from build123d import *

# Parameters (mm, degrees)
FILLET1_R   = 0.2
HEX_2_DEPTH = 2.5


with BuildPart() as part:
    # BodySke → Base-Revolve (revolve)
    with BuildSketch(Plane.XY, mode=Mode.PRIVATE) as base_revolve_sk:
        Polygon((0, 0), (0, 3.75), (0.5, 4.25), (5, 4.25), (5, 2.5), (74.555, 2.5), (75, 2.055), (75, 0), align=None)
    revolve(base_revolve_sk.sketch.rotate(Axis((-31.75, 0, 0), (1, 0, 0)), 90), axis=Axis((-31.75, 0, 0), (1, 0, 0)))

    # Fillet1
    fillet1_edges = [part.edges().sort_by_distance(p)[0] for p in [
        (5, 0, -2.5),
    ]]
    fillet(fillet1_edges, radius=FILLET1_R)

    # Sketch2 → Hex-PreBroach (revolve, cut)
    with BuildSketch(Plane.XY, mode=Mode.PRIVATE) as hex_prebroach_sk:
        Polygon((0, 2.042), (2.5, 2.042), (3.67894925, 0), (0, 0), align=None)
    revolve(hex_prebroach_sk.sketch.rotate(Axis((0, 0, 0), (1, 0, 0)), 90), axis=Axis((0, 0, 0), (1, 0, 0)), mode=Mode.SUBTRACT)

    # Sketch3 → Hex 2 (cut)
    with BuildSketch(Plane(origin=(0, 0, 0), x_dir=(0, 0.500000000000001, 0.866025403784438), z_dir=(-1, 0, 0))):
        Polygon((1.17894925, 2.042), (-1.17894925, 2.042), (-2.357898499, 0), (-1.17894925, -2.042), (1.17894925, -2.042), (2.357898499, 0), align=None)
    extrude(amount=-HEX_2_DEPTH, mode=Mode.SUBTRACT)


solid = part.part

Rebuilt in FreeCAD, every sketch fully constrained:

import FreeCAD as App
import Part
import Sketcher
from FreeCAD import Vector
Q = App.Units.Quantity


def edges_at(feature, points):
    """Names of the edges that pass closest to the given points."""
    edges = feature.Shape.Edges
    near = lambda p: min(range(len(edges)), key=lambda i: edges[i].distToShape(Part.Vertex(*p))[0])
    return sorted({f"Edge{near(p) + 1}" for p in points})


def add_polygon(sketch, points):
    """Adds a closed chain of lines whose ends are joined by coincident constraints."""
    first, n = sketch.GeometryCount, len(points)
    for a, b in zip(points, points[1:] + points[:1]):
        sketch.addGeometry(Part.LineSegment(App.Vector(*a, 0), App.Vector(*b, 0)), False)
    for i in range(n):
        sketch.addConstraint(Sketcher.Constraint("Coincident", first + i, 2, first + (i + 1) % n, 1))

doc = App.newDocument("Part")
body = doc.addObject("PartDesign::Body", "Body")

sketch1 = body.newObject("Sketcher::SketchObject", "Sketch")
sketch1.AttachmentSupport = (doc.getObject("XY_Plane"), [""])
sketch1.MapMode = "FlatFace"
add_polygon(sketch1, [(0, 3.8), (0, 0), (75, 0), (75, 2.1), (74.6, 2.5), (5, 2.5), (5, 4.2), (0.5, 4.2)])
sketch1.addConstraint([
    Sketcher.Constraint("Vertical", 0),
    Sketcher.Constraint("Horizontal", 1),
    Sketcher.Constraint("Vertical", 2),
    Sketcher.Constraint("Horizontal", 4),
    Sketcher.Constraint("Vertical", 5),
    Sketcher.Constraint("Horizontal", 6),
    Sketcher.Constraint("Coincident", 0, 2, -1, 1),
    Sketcher.Constraint("Perpendicular", 3, 7),
    Sketcher.Constraint("DistanceX", 1, 1, 1, 2, 75.0),
    Sketcher.Constraint("Angle", 3, Q("135 deg")),
    Sketcher.Constraint("DistanceX", 6, 2, 6, 1, 4.5),
    Sketcher.Constraint("DistanceX", -1, 1, 4, 2, 5.0),
    Sketcher.Constraint("DistanceY", 0, 2, 0, 1, 3.75),
    Sketcher.Constraint("DistanceY", 5, 1, 5, 2, 1.75),
    Sketcher.Constraint("DistanceX", 4, 2, 4, 1, 69.555),
])
revolution = body.newObject("PartDesign::Revolution", "Revolution")
revolution.Profile = sketch1
revolution.ReferenceAxis = (sketch1, ["H_Axis"])
revolution.Angle = 360
doc.recompute()

fillet = body.newObject("PartDesign::Fillet", "Fillet")
fillet.Base = (revolution, edges_at(revolution, [(5, 0, -2.5)]))
fillet.Radius = 0.2

sketch2 = body.newObject("Sketcher::SketchObject", "Sketch001")
sketch2.AttachmentSupport = (doc.getObject("XY_Plane"), [""])
sketch2.MapMode = "FlatFace"
add_polygon(sketch2, [(2.5, 2), (0, 2), (0, 0), (3.7, 0)])
sketch2.addConstraint([
    Sketcher.Constraint("Horizontal", 0),
    Sketcher.Constraint("Vertical", 1),
    Sketcher.Constraint("Horizontal", 2),
    Sketcher.Constraint("Coincident", 1, 2, -1, 1),
    Sketcher.Constraint("Angle", 3, Q("120 deg")),
    Sketcher.Constraint("DistanceX", 0, 2, 0, 1, 2.5),
    Sketcher.Constraint("DistanceY", 1, 2, 1, 1, 2.042),
])
groove = body.newObject("PartDesign::Groove", "Groove")
groove.Profile = sketch2
groove.ReferenceAxis = (sketch2, ["H_Axis"])
groove.Angle = 360

sketch3 = body.newObject("Sketcher::SketchObject", "Sketch002")
sketch3.AttachmentSupport = (doc.getObject("YZ_Plane"), [""])
sketch3.MapMode = "FlatFace"
add_polygon(sketch3, [(2.4, 0), (1.2, -2), (-1.2, -2), (-2.4, 0), (-1.2, 2), (1.2, 2)])
sketch3.addConstraint([
    Sketcher.Constraint("Horizontal", 1),
    Sketcher.Constraint("Horizontal", 4),
    Sketcher.Constraint("Symmetric", 0, 2, 3, 2, -1, 1),
    Sketcher.Constraint("Symmetric", 2, 2, 5, 2, -1, 1),
    Sketcher.Constraint("PointOnObject", 2, 2, -1),
    Sketcher.Constraint("Parallel", 2, 5),
    Sketcher.Constraint("Vertical", 1, 2, 3, 2),
    Sketcher.Constraint("Angle", 0, Q("-120 deg")),
    Sketcher.Constraint("DistanceX", 1, 2, 1, 1, 2.357899),
    Sketcher.Constraint("DistanceY", 0, 2, -1, 1, 2.042),
])
pocket1 = body.newObject("PartDesign::Pocket", "Pocket")
pocket1.Profile = sketch3
pocket1.Length = 2.5
pocket1.Reversed = True

doc.recompute()
